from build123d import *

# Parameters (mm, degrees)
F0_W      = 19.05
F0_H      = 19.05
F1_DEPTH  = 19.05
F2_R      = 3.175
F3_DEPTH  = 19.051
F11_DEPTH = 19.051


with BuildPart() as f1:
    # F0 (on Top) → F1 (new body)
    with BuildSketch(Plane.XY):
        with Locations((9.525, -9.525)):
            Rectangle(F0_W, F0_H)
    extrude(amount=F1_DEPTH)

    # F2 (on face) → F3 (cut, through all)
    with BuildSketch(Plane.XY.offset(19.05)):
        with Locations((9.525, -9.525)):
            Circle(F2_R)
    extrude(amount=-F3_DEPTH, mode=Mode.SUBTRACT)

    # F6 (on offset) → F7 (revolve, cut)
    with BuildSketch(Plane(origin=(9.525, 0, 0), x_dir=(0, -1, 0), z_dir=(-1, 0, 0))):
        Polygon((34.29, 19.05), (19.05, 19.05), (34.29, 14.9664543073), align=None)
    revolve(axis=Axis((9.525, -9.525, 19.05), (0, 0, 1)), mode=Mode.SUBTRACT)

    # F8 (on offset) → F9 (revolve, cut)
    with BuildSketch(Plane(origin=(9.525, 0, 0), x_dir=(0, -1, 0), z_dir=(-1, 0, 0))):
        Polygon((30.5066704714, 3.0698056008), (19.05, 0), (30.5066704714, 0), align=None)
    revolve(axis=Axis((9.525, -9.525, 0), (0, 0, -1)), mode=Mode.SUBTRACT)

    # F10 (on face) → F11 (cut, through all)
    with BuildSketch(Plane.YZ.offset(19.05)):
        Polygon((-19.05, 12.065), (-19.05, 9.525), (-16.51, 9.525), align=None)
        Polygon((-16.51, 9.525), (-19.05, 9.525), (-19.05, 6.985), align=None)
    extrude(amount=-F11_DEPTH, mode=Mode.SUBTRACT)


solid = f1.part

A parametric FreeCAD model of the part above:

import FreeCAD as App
import Part
import Sketcher
from FreeCAD import Vector
Q = App.Units.Quantity


def add_polygon(sketch, points):
    """Adds a closed chain of lines whose ends are joined by coincident constraints."""
    first, n = sketch.GeometryCount, len(points)
    for a, b in zip(points, points[1:] + points[:1]):
        sketch.addGeometry(Part.LineSegment(App.Vector(*a, 0), App.Vector(*b, 0)), False)
    for i in range(n):
        sketch.addConstraint(Sketcher.Constraint("Coincident", first + i, 2, first + (i + 1) % n, 1))

doc = App.newDocument("Part")
body = doc.addObject("PartDesign::Body", "Body")

# Sketch on XY plane
sketch1 = body.newObject("Sketcher::SketchObject", "Sketch")
sketch1.AttachmentSupport = (doc.getObject("XY_Plane"), [""])
sketch1.MapMode = "FlatFace"
add_polygon(sketch1, [(0, 0), (0, -19.05), (19.05, -19.05), (19.05, 0)])  # lines 0-3
sketch1.addConstraint([
    Sketcher.Constraint("Vertical", 0),
    Sketcher.Constraint("Horizontal", 1),
    Sketcher.Constraint("Vertical", 2),
    Sketcher.Constraint("Horizontal", 3),
    Sketcher.Constraint("Coincident", 3, 2, -1, 1),
    Sketcher.Constraint("Equal", 3, 0),
    Sketcher.Constraint("DistanceX", 1, 1, 1, 2, Q("0.75 in")),
])
pad1 = body.newObject("PartDesign::Pad", "Pad")
pad1.Profile = sketch1
pad1.Length = Q("0.75 in")

# Sketch on XY plane
sketch2 = body.newObject("Sketcher::SketchObject", "Sketch001")
sketch2.AttachmentSupport = (doc.getObject("XY_Plane"), [""])
sketch2.MapMode = "FlatFace"
sketch2.AttachmentOffset = App.Placement(Vector(0, 0, 0.75 * 25.4), App.Rotation())
sketch2.addGeometry(Part.Circle(Vector(9.525, -9.525, 0), Vector(0, 0, 1), 3.175), False)
sketch2.addConstraint([
    Sketcher.Constraint("Diameter", 0, Q("0.25 in")),
    Sketcher.Constraint("DistanceX", -1, 1, 0, 3, Q("0.375 in")),
    Sketcher.Constraint("DistanceY", 0, 3, -1, 1, Q("0.375 in")),
])
pocket1 = body.newObject("PartDesign::Pocket", "Pocket")
pocket1.Profile = sketch2
pocket1.Type = "ThroughAll"

# Sketch on YZ plane
sketch3 = body.newObject("Sketcher::SketchObject", "Sketch002")
sketch3.AttachmentSupport = (doc.getObject("YZ_Plane"), [""])
sketch3.MapMode = "FlatFace"
sketch3.AttachmentOffset = App.Placement(Vector(0, 0, 0.375 * 25.4), App.Rotation())
add_polygon(sketch3, [(-34.29, 19.05), (-19.05, 19.05), (-34.29, 14.966454)])  # lines 0-2
sketch3.addGeometry(Part.LineSegment(Vector(-9.525, 14.966454, 0), Vector(-9.525, 19.05, 0)), True)  # axis
sketch3.addConstraint([
    Sketcher.Constraint("Horizontal", 0),
    Sketcher.Constraint("Vertical", 2),
    Sketcher.Constraint("Vertical", 3),
    Sketcher.Constraint("Horizontal", 1, 2, 3, 1),
    Sketcher.Constraint("Horizontal", 2, 2, 3, 2),
    Sketcher.Constraint("DistanceX", 0, 1, 0, 2, Q("0.6 in")),
    Sketcher.Constraint("Angle", 1, Q("-165 deg")),
    Sketcher.Constraint("DistanceX", 0, 2, -1, 1, Q("0.75 in")),
    Sketcher.Constraint("DistanceY", -1, 1, 0, 2, Q("0.75 in")),
    Sketcher.Constraint("DistanceX", 3, 1, -1, 1, Q("0.375 in")),
])
groove = body.newObject("PartDesign::Groove", "Groove")
groove.Profile = sketch3
groove.ReferenceAxis = (sketch3, ["Axis0"])
groove.Angle = 360

# Sketch on YZ plane
sketch4 = body.newObject("Sketcher::SketchObject", "Sketch003")
sketch4.AttachmentSupport = (doc.getObject("YZ_Plane"), [""])
sketch4.MapMode = "FlatFace"
sketch4.AttachmentOffset = App.Placement(Vector(0, 0, 0.375 * 25.4), App.Rotation())
add_polygon(sketch4, [(-30.50667, 3.069806), (-19.05, 0), (-30.50667, 0)])  # lines 0-2
sketch4.addGeometry(Part.LineSegment(Vector(-9.525, 3.069806, 0), Vector(-9.525, 0, 0)), True)  # axis
sketch4.addConstraint([
    Sketcher.Constraint("Horizontal", 1),
    Sketcher.Constraint("Vertical", 2),
    Sketcher.Constraint("Vertical", 3),
    Sketcher.Constraint("PointOnObject", 0, 2, -1),
    Sketcher.Constraint("PointOnObject", 3, 2, -1),
    Sketcher.Constraint("Horizontal", 2, 2, 3, 1),
    Sketcher.Constraint("Angle", 0, Q("-15 deg")),
    Sketcher.Constraint("DistanceX", 0, 2, -1, 1, Q("0.75 in")),
    Sketcher.Constraint("DistanceX", 3, 1, -1, 1, Q("0.375 in")),
    Sketcher.Constraint("DistanceX", 1, 2, 1, 1, 11.45667),
])
groove2 = body.newObject("PartDesign::Groove", "Groove001")
groove2.Profile = sketch4
groove2.ReferenceAxis = (sketch4, ["Axis0"])
groove2.Angle = 360

# Sketch on YZ plane
sketch5 = body.newObject("Sketcher::SketchObject", "Sketch004")
sketch5.AttachmentSupport = (doc.getObject("YZ_Plane"), [""])
sketch5.MapMode = "FlatFace"
sketch5.AttachmentOffset = App.Placement(Vector(0, 0, 0.75 * 25.4), App.Rotation())
add_polygon(sketch5, [(-19.05, 12.065), (-19.05, 6.985), (-16.51, 9.525)])  # lines 0-2
sketch5.addConstraint([
    Sketcher.Constraint("Vertical", 0),
    Sketcher.Constraint("Perpendicular", 1, 2),
    Sketcher.Constraint("Equal", 1, 2),
    Sketcher.Constraint("DistanceY", 0, 2, 0, 1, Q("0.2 in")),
    Sketcher.Constraint("DistanceX", 0, 2, -1, 1, Q("0.75 in")),
    Sketcher.Constraint("DistanceY", -1, 1, 0, 2, Q("0.275 in")),
])
pocket2 = body.newObject("PartDesign::Pocket", "Pocket001")
pocket2.Profile = sketch5
pocket2.Type = "ThroughAll"

doc.recompute()
